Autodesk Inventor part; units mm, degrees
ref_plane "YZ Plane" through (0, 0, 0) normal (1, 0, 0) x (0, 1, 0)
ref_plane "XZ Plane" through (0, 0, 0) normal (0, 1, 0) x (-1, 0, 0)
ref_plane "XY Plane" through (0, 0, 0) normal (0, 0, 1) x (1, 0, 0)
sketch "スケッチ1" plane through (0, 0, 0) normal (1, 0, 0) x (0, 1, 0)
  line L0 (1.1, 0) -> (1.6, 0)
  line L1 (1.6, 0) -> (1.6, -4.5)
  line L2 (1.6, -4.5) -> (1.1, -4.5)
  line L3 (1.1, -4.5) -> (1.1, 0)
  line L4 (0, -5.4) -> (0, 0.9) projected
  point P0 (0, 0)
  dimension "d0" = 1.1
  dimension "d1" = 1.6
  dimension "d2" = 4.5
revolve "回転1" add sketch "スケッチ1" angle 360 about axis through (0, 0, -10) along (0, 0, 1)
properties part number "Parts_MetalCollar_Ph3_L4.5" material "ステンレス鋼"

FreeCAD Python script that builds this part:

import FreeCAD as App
import Part
import Sketcher

V = App.Vector

doc = App.newDocument("Part")
body = doc.addObject("PartDesign::Body", "Body")

# Sketch on YZ plane
sketch1 = doc.addObject("Sketcher::SketchObject", "Sketch")
body.addObject(sketch1)
sketch1.AttachmentSupport = (doc.YZ_Plane, [""])
sketch1.MapMode = "FlatFace"
sketch1.addGeometry(Part.LineSegment(V(1.6, 0, 0), V(1.1, 0, 0)), False)
sketch1.addGeometry(Part.LineSegment(V(1.1, 0, 0), V(1.1, -4.5, 0)), False)
sketch1.addGeometry(Part.LineSegment(V(1.1, -4.5, 0), V(1.6, -4.5, 0)), False)
sketch1.addGeometry(Part.LineSegment(V(1.6, -4.5, 0), V(1.6, 0, 0)), False)
sketch1.addConstraint(Sketcher.Constraint("Coincident", 0, 2, 1, 1))
sketch1.addConstraint(Sketcher.Constraint("Coincident", 1, 2, 2, 1))
sketch1.addConstraint(Sketcher.Constraint("Coincident", 2, 2, 3, 1))
sketch1.addConstraint(Sketcher.Constraint("Coincident", 3, 2, 0, 1))
sketch1.addConstraint(Sketcher.Constraint("Horizontal", 0))
sketch1.addConstraint(Sketcher.Constraint("Vertical", 1))
sketch1.addConstraint(Sketcher.Constraint("Horizontal", 2))
sketch1.addConstraint(Sketcher.Constraint("Vertical", 3))
sketch1.addConstraint(Sketcher.Constraint("PointOnObject", 0, 2, -1))
sketch1.addConstraint(Sketcher.Constraint("DistanceY", 1, 2, 1, 1, 4.5))
sketch1.addConstraint(Sketcher.Constraint("DistanceX", -1, 1, 0, 2, 1.1))
sketch1.addConstraint(Sketcher.Constraint("DistanceX", -1, 1, 2, 2, 1.6))
revolution = doc.addObject("PartDesign::Revolution", "Revolution")
body.addObject(revolution)
revolution.Profile = sketch1
revolution.ReferenceAxis = (sketch1, ["V_Axis"])
revolution.Angle = 360

doc.recompute()
